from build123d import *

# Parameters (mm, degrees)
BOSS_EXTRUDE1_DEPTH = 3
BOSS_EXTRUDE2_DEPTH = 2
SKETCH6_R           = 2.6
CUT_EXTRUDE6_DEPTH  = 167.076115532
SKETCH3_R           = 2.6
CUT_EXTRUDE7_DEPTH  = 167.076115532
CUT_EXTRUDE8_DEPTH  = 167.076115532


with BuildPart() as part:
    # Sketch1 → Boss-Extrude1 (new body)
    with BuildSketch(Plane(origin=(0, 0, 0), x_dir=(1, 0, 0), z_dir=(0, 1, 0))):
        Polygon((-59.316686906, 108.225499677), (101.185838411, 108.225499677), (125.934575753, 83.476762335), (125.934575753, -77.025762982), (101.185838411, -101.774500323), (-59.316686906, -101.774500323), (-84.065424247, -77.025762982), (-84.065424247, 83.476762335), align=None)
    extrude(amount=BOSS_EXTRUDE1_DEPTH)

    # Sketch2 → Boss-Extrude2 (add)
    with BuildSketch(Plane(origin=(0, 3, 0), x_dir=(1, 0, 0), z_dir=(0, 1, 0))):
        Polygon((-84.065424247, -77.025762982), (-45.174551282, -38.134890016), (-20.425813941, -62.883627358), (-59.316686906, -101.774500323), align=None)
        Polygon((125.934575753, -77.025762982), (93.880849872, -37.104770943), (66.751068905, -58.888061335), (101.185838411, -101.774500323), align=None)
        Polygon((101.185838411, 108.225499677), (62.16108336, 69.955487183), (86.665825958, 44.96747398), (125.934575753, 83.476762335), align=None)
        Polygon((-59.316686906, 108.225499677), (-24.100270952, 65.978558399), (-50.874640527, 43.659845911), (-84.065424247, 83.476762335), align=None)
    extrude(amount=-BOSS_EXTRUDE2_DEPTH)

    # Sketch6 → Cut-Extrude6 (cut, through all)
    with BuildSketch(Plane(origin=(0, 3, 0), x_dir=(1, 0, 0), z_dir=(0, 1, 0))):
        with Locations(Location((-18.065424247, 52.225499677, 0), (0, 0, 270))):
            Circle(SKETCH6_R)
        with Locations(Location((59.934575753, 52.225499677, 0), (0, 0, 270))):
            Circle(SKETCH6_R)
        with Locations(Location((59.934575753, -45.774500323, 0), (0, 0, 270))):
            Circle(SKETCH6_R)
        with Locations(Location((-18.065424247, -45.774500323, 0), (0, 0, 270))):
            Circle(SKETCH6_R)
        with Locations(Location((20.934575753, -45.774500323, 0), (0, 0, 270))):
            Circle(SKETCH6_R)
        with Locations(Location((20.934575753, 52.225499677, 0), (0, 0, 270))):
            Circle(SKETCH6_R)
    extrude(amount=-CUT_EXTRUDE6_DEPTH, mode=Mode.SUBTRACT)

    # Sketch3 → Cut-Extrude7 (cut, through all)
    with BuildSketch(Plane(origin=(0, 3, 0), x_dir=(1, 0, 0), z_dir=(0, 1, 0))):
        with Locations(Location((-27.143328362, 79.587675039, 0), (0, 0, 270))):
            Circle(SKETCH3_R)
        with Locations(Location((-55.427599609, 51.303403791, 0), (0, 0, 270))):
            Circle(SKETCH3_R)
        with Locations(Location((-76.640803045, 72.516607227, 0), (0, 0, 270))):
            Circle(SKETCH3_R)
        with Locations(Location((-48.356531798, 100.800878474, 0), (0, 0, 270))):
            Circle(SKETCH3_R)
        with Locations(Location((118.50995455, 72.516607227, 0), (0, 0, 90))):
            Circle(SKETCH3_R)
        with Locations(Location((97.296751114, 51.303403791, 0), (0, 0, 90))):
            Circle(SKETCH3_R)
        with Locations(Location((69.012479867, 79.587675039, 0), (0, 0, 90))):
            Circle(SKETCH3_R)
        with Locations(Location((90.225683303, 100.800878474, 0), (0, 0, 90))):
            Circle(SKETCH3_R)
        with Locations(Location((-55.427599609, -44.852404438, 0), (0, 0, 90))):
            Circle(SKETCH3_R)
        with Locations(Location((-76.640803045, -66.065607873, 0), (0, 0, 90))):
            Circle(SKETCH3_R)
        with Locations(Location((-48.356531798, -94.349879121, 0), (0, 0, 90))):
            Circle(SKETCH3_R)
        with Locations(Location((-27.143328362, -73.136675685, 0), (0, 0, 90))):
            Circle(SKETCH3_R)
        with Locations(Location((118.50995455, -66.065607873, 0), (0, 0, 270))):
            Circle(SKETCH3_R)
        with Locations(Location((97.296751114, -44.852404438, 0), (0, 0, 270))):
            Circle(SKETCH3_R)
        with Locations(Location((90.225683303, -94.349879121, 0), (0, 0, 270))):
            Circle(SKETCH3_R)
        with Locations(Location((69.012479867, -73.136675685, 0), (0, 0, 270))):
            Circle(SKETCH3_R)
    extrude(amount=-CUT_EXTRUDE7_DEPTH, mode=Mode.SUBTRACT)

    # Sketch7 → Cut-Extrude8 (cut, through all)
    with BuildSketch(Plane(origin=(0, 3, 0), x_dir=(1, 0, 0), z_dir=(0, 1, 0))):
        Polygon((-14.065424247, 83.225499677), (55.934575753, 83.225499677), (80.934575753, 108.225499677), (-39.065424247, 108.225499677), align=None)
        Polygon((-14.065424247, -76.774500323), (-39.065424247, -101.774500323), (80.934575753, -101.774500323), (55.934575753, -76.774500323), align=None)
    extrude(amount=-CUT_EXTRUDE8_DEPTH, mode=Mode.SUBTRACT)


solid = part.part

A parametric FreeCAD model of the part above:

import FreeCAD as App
import Part
import Sketcher

V = App.Vector

doc = App.newDocument("Part")
params = doc.addObject("Spreadsheet::Sheet", "Params")
for row, (alias, value) in enumerate([
    ("sketch1_length", "35 mm"),
    ("pad1_length", "3 mm"),
    ("sketch2_length", "55 mm"),
    ("sketch2_length2", "35 mm"),
    ("pad2_length", "2 mm"),
    ("sketch3_diameter", "5.2 mm"),
    ("sketch4_diameter", "5.2 mm"),
    ("sketch5_width", "70 mm"),
    ("sketch5_width2", "120 mm"),
], start=1):
    params.set(f"A{row}", alias)
    params.set(f"B{row}", "=" + value)
    params.setAlias(f"B{row}", alias)

body = doc.addObject("PartDesign::Body", "Body")

sketch1 = body.newObject("Sketcher::SketchObject", "Sketch")
sketch1.AttachmentSupport = (doc.getObject("XZ_Plane"), [""])
sketch1.MapMode = "FlatFace"
sketch1.addGeometry([
    Part.LineSegment(V(101, -108, 0), V(-59, -108, 0)),
    Part.LineSegment(V(-59, -108, 0), V(-84, -83, 0)),
    Part.LineSegment(V(-84, -83, 0), V(-84, 77, 0)),
    Part.LineSegment(V(-84, 77, 0), V(-59, 102, 0)),
    Part.LineSegment(V(-59, 102, 0), V(101, 102, 0)),
    Part.LineSegment(V(101, 102, 0), V(126, 77, 0)),
    Part.LineSegment(V(126, 77, 0), V(126, -83, 0)),
    Part.LineSegment(V(126, -83, 0), V(101, -108, 0)),
], False)
sketch1.addConstraint([
    Sketcher.Constraint("Coincident", 0, 2, 1, 1),
    Sketcher.Constraint("Coincident", 1, 2, 2, 1),
    Sketcher.Constraint("Coincident", 2, 2, 3, 1),
    Sketcher.Constraint("Coincident", 3, 2, 4, 1),
    Sketcher.Constraint("Coincident", 4, 2, 5, 1),
    Sketcher.Constraint("Coincident", 5, 2, 6, 1),
    Sketcher.Constraint("Coincident", 6, 2, 7, 1),
    Sketcher.Constraint("Coincident", 7, 2, 0, 1),
    Sketcher.Constraint("Horizontal", 0),
    Sketcher.Constraint("Vertical", 2),
    Sketcher.Constraint("Horizontal", 4),
    Sketcher.Constraint("Vertical", 6),
    Sketcher.Constraint("Perpendicular", 1, 3),
    Sketcher.Constraint("Perpendicular", 3, 5),
    Sketcher.Constraint("Perpendicular", 5, 7),
    Sketcher.Constraint("Horizontal", 2, 2, 5, 2),
    Sketcher.Constraint("Horizontal", 1, 2, 6, 2),
    Sketcher.Constraint("Vertical", 0, 2, 3, 2),
    Sketcher.Constraint("Vertical", 4, 2, 7, 2),
    Sketcher.Constraint("Equal", 4, 2),
    Sketcher.Constraint("Distance", 1, 35.0),
    Sketcher.Constraint("DistanceY", 0, 2, 3, 2, 210.0),
    Sketcher.Constraint("DistanceY", 0, 2, -1, 1, 108.2255),
    Sketcher.Constraint("DistanceX", -1, 1, 4, 2, 101.185838),
])
sketch1.setExpression("Constraints[20]", "Params.sketch1_length")
pad1 = body.newObject("PartDesign::Pad", "Pad")
pad1.Profile = sketch1
pad1.setExpression("Length", "Params.pad1_length")
pad1.Reversed = True

sketch2 = body.newObject("Sketcher::SketchObject", "Sketch001")
sketch2.AttachmentSupport = (doc.getObject("XZ_Plane"), [""])
sketch2.MapMode = "FlatFace"
sketch2.AttachmentOffset = App.Placement(V(0, 0, -3), App.Rotation())
sketch2.addGeometry([
    Part.LineSegment(V(-45, 38, 0), V(-84, 77, 0)),
    Part.LineSegment(V(-84, 77, 0), V(-59, 102, 0)),
    Part.LineSegment(V(-59, 102, 0), V(-20, 63, 0)),
    Part.LineSegment(V(-20, 63, 0), V(-45, 38, 0)),
    Part.LineSegment(V(126, 77, 0), V(94, 37, 0)),
    Part.LineSegment(V(94, 37, 0), V(67, 59, 0)),
    Part.LineSegment(V(67, 59, 0), V(101, 102, 0)),
    Part.LineSegment(V(101, 102, 0), V(126, 77, 0)),
    Part.LineSegment(V(101, -108, 0), V(62, -70, 0)),
    Part.LineSegment(V(62, -70, 0), V(87, -45, 0)),
    Part.LineSegment(V(87, -45, 0), V(126, -83, 0)),
    Part.LineSegment(V(126, -83, 0), V(101, -108, 0)),
    Part.LineSegment(V(-24, -66, 0), V(-59, -108, 0)),
    Part.LineSegment(V(-59, -108, 0), V(-84, -83, 0)),
    Part.LineSegment(V(-84, -83, 0), V(-51, -44, 0)),
    Part.LineSegment(V(-51, -44, 0), V(-24, -66, 0)),
], False)
sketch2.addConstraint([
    Sketcher.Constraint("Coincident", 0, 2, 1, 1),
    Sketcher.Constraint("Coincident", 1, 2, 2, 1),
    Sketcher.Constraint("Coincident", 2, 2, 3, 1),
    Sketcher.Constraint("Coincident", 3, 2, 0, 1),
    Sketcher.Constraint("Coincident", 4, 2, 5, 1),
    Sketcher.Constraint("Coincident", 5, 2, 6, 1),
    Sketcher.Constraint("Coincident", 6, 2, 7, 1),
    Sketcher.Constraint("Coincident", 7, 2, 4, 1),
    Sketcher.Constraint("Coincident", 8, 2, 9, 1),
    Sketcher.Constraint("Coincident", 9, 2, 10, 1),
    Sketcher.Constraint("Coincident", 10, 2, 11, 1),
    Sketcher.Constraint("Coincident", 11, 2, 8, 1),
    Sketcher.Constraint("Coincident", 12, 2, 13, 1),
    Sketcher.Constraint("Coincident", 13, 2, 14, 1),
    Sketcher.Constraint("Coincident", 14, 2, 15, 1),
    Sketcher.Constraint("Coincident", 15, 2, 12, 1),
    Sketcher.Constraint("Perpendicular", 0, 1),
    Sketcher.Constraint("Perpendicular", 1, 2),
    Sketcher.Constraint("Perpendicular", 2, 3),
    Sketcher.Constraint("Perpendicular", 4, 5),
    Sketcher.Constraint("Perpendicular", 5, 6),
    Sketcher.Constraint("Perpendicular", 3, 7),
    Sketcher.Constraint("Perpendicular", 8, 9),
    Sketcher.Constraint("Perpendicular", 9, 10),
    Sketcher.Constraint("Perpendicular", 7, 11),
    Sketcher.Constraint("Perpendicular", 11, 13),
    Sketcher.Constraint("Parallel", 12, 14),
    Sketcher.Constraint("Perpendicular", 14, 15),
    Sketcher.Constraint("Horizontal", 1, 2, 6, 2),
    Sketcher.Constraint("Horizontal", 0, 2, 7, 2),
    Sketcher.Constraint("Horizontal", 11, 2, 12, 2),
    Sketcher.Constraint("Horizontal", 10, 2, 13, 2),
    Sketcher.Constraint("Vertical", 7, 2, 10, 2),
    Sketcher.Constraint("Vertical", 6, 2, 11, 2),
    Sketcher.Constraint("Vertical", 1, 2, 12, 2),
    Sketcher.Constraint("Vertical", 0, 2, 13, 2),
    Sketcher.Constraint("Equal", 2, 6),
    Sketcher.Constraint("Equal", 6, 10),
    Sketcher.Constraint("Equal", 10, 12),
    Sketcher.Constraint("Distance", 0, 55.0),
    Sketcher.Constraint("Distance", 1, 35.0),
    Sketcher.Constraint("DistanceY", -1, 1, 1, 2, 101.7745),
    Sketcher.Constraint("DistanceY", 11, 2, -1, 1, 108.2255),
    Sketcher.Constraint("DistanceX", 3, 2, 4, 2, 139.055401),
    Sketcher.Constraint("DistanceY", 5, 2, 0, 2, 18.137702),
    Sketcher.Constraint("Distance", 8, 54.65826),
    Sketcher.Constraint("DistanceX", 3, 2, -1, 1, 45.174551),
    Sketcher.Constraint("DistanceX", 14, 2, -1, 1, 50.874641),
])
sketch2.setExpression("Constraints[39]", "Params.sketch2_length")
sketch2.setExpression("Constraints[40]", "Params.sketch2_length2")
pad2 = body.newObject("PartDesign::Pad", "Pad001")
pad2.Profile = sketch2
pad2.setExpression("Length", "Params.pad2_length")

sketch3 = body.newObject("Sketcher::SketchObject", "Sketch002")
sketch3.AttachmentSupport = (doc.getObject("XZ_Plane"), [""])
sketch3.MapMode = "FlatFace"
sketch3.AttachmentOffset = App.Placement(V(0, 0, -3), App.Rotation())
sketch3.addGeometry([
    Part.Circle(V(-18.1, -52.2, 0), V(0, 0, 1), 2.6),
    Part.Circle(V(59.9, -52.2, 0), V(0, 0, 1), 2.6),
    Part.Circle(V(59.9, 45.8, 0), V(0, 0, 1), 2.6),
    Part.Circle(V(-18.1, 45.8, 0), V(0, 0, 1), 2.6),
    Part.Circle(V(20.9, 45.8, 0), V(0, 0, 1), 2.6),
    Part.Circle(V(20.9, -52.2, 0), V(0, 0, 1), 2.6),
], False)
sketch3.addConstraint([
    Sketcher.Constraint("Equal", 0, 1),
    Sketcher.Constraint("Equal", 1, 2),
    Sketcher.Constraint("Equal", 2, 3),
    Sketcher.Constraint("Equal", 3, 4),
    Sketcher.Constraint("Equal", 4, 5),
    Sketcher.Constraint("Horizontal", 0, 3, 1, 3),
    Sketcher.Constraint("Horizontal", 2, 3, 3, 3),
    Sketcher.Constraint("Horizontal", 3, 3, 4, 3),
    Sketcher.Constraint("Horizontal", 1, 3, 5, 3),
    Sketcher.Constraint("Vertical", 1, 3, 2, 3),
    Sketcher.Constraint("Vertical", 0, 3, 3, 3),
    Sketcher.Constraint("Vertical", 4, 3, 5, 3),
    Sketcher.Constraint("Diameter", 0, 5.2),
    Sketcher.Constraint("DistanceX", 0, 3, 1, 3, 78.0),
    Sketcher.Constraint("DistanceY", 1, 3, 2, 3, 98.0),
    Sketcher.Constraint("DistanceX", 4, 3, 2, 3, 39.0),
    Sketcher.Constraint("DistanceY", 0, 3, -1, 1, 52.2255),
    Sketcher.Constraint("DistanceX", 0, 3, -1, 1, 18.065424),
])
sketch3.setExpression("Constraints[12]", "Params.sketch3_diameter")
pocket1 = body.newObject("PartDesign::Pocket", "Pocket")
pocket1.Profile = sketch3
pocket1.Type = "ThroughAll"
pocket1.Reversed = True

sketch4 = body.newObject("Sketcher::SketchObject", "Sketch003")
sketch4.AttachmentSupport = (doc.getObject("XZ_Plane"), [""])
sketch4.MapMode = "FlatFace"
sketch4.AttachmentOffset = App.Placement(V(0, 0, -3), App.Rotation())
sketch4.addGeometry([
    Part.Circle(V(-27.1, -79.6, 0), V(0, 0, 1), 2.6),
    Part.Circle(V(-55.4, -51.3, 0), V(0, 0, 1), 2.6),
    Part.Circle(V(-76.6, -72.5, 0), V(0, 0, 1), 2.6),
    Part.Circle(V(-48.4, -100.8, 0), V(0, 0, 1), 2.6),
    Part.Circle(V(118.5, -72.5, 0), V(0, 0, 1), 2.6),
    Part.Circle(V(97.3, -51.3, 0), V(0, 0, 1), 2.6),
    Part.Circle(V(69, -79.6, 0), V(0, 0, 1), 2.6),
    Part.Circle(V(90.2, -100.8, 0), V(0, 0, 1), 2.6),
    Part.Circle(V(-55.4, 44.9, 0), V(0, 0, 1), 2.6),
    Part.Circle(V(-76.6, 66.1, 0), V(0, 0, 1), 2.6),
    Part.Circle(V(-48.4, 94.3, 0), V(0, 0, 1), 2.6),
    Part.Circle(V(-27.1, 73.1, 0), V(0, 0, 1), 2.6),
    Part.Circle(V(118.5, 66.1, 0), V(0, 0, 1), 2.6),
    Part.Circle(V(97.3, 44.9, 0), V(0, 0, 1), 2.6),
    Part.Circle(V(90.2, 94.3, 0), V(0, 0, 1), 2.6),
    Part.Circle(V(69, 73.1, 0), V(0, 0, 1), 2.6),
], False)
sketch4.addConstraint([
    Sketcher.Constraint("Equal", 0, 1),
    Sketcher.Constraint("Equal", 1, 2),
    Sketcher.Constraint("Equal", 2, 3),
    Sketcher.Constraint("Equal", 3, 4),
    Sketcher.Constraint("Equal", 4, 5),
    Sketcher.Constraint("Equal", 5, 6),
    Sketcher.Constraint("Equal", 6, 7),
    Sketcher.Constraint("Equal", 7, 8),
    Sketcher.Constraint("Equal", 8, 9),
    Sketcher.Constraint("Equal", 9, 10),
    Sketcher.Constraint("Equal", 10, 11),
    Sketcher.Constraint("Equal", 11, 12),
    Sketcher.Constraint("Equal", 12, 13),
    Sketcher.Constraint("Equal", 13, 14),
    Sketcher.Constraint("Equal", 14, 15),
    Sketcher.Constraint("Horizontal", 2, 3, 4, 3),
    Sketcher.Constraint("Horizontal", 1, 3, 5, 3),
    Sketcher.Constraint("Horizontal", 0, 3, 6, 3),
    Sketcher.Constraint("Horizontal", 3, 3, 7, 3),
    Sketcher.Constraint("Horizontal", 9, 3, 12, 3),
    Sketcher.Constraint("Horizontal", 8, 3, 13, 3),
    Sketcher.Constraint("Horizontal", 10, 3, 14, 3),
    Sketcher.Constraint("Horizontal", 11, 3, 15, 3),
    Sketcher.Constraint("Vertical", 1, 3, 8, 3),
    Sketcher.Constraint("Vertical", 2, 3, 9, 3),
    Sketcher.Constraint("Vertical", 3, 3, 10, 3),
    Sketcher.Constraint("Vertical", 0, 3, 11, 3),
    Sketcher.Constraint("Vertical", 4, 3, 12, 3),
    Sketcher.Constraint("Vertical", 5, 3, 13, 3),
    Sketcher.Constraint("Vertical", 7, 3, 14, 3),
    Sketcher.Constraint("Vertical", 6, 3, 15, 3),
    Sketcher.Constraint("Diameter", 0, 5.2),
    Sketcher.Constraint("DistanceX", 1, 3, -1, 1, 55.4276),
    Sketcher.Constraint("DistanceX", 0, 3, -1, 1, 27.143328),
    Sketcher.Constraint("DistanceX", 3, 3, -1, 1, 48.356532),
    Sketcher.Constraint("DistanceY", 3, 3, -1, 1, 100.800878),
    Sketcher.Constraint("DistanceX", -1, 1, 5, 3, 97.296751),
    Sketcher.Constraint("DistanceX", -1, 1, 6, 3, 69.01248),
    Sketcher.Constraint("DistanceY", -1, 1, 10, 3, 94.349879),
    Sketcher.Constraint("DistanceY", 0, 3, 1, 3, 28.284271),
    Sketcher.Constraint("DistanceX", 2, 3, 3, 3, 28.284271),
    Sketcher.Constraint("DistanceY", 3, 3, 2, 3, 28.284271),
    Sketcher.Constraint("DistanceX", 7, 3, 4, 3, 28.284271),
    Sketcher.Constraint("DistanceX", 0, 3, 7, 3, 117.369012),
    Sketcher.Constraint("DistanceY", 1, 3, 8, 3, 96.155808),
    Sketcher.Constraint("DistanceY", 2, 3, 8, 3, 117.369012),
    Sketcher.Constraint("DistanceY", 1, 3, 9, 3, 117.369012),
    Sketcher.Constraint("DistanceY", 8, 3, 11, 3, 28.284271),
])
sketch4.setExpression("Constraints[31]", "Params.sketch4_diameter")
pocket2 = body.newObject("PartDesign::Pocket", "Pocket001")
pocket2.Profile = sketch4
pocket2.Type = "ThroughAll"
pocket2.Reversed = True

sketch5 = body.newObject("Sketcher::SketchObject", "Sketch004")
sketch5.AttachmentSupport = (doc.getObject("XZ_Plane"), [""])
sketch5.MapMode = "FlatFace"
sketch5.AttachmentOffset = App.Placement(V(0, 0, -3), App.Rotation())
sketch5.addGeometry([
    Part.LineSegment(V(-14, -83, 0), V(56, -83, 0)),
    Part.LineSegment(V(56, -83, 0), V(81, -108, 0)),
    Part.LineSegment(V(81, -108, 0), V(-39, -108, 0)),
    Part.LineSegment(V(-39, -108, 0), V(-14, -83, 0)),
    Part.LineSegment(V(-14, 77, 0), V(-39, 102, 0)),
    Part.LineSegment(V(-39, 102, 0), V(81, 102, 0)),
    Part.LineSegment(V(81, 102, 0), V(56, 77, 0)),
    Part.LineSegment(V(56, 77, 0), V(-14, 77, 0)),
], False)
sketch5.addConstraint([
    Sketcher.Constraint("Coincident", 0, 2, 1, 1),
    Sketcher.Constraint("Coincident", 1, 2, 2, 1),
    Sketcher.Constraint("Coincident", 2, 2, 3, 1),
    Sketcher.Constraint("Coincident", 3, 2, 0, 1),
    Sketcher.Constraint("Coincident", 4, 2, 5, 1),
    Sketcher.Constraint("Coincident", 5, 2, 6, 1),
    Sketcher.Constraint("Coincident", 6, 2, 7, 1),
    Sketcher.Constraint("Coincident", 7, 2, 4, 1),
    Sketcher.Constraint("Horizontal", 0),
    Sketcher.Constraint("Horizontal", 2),
    Sketcher.Constraint("Horizontal", 5),
    Sketcher.Constraint("Horizontal", 7),
    Sketcher.Constraint("Perpendicular", 1, 3),
    Sketcher.Constraint("Perpendicular", 3, 4),
    Sketcher.Constraint("Perpendicular", 4, 6),
    Sketcher.Constraint("Vertical", 2, 2, 4, 2),
    Sketcher.Constraint("Vertical", 1, 2, 5, 2),
    Sketcher.Constraint("Vertical", 0, 2, 6, 2),
    Sketcher.Constraint("Vertical", 3, 2, 7, 2),
    Sketcher.Constraint("DistanceX", 0, 1, 0, 2, 70.0),
    Sketcher.Constraint("DistanceX", 2, 2, 2, 1, 120.0),
    Sketcher.Constraint("DistanceY", 3, 2, 4, 2, 185.0),
    Sketcher.Constraint("DistanceY", 0, 2, -1, 1, 83.2255),
    Sketcher.Constraint("DistanceX", -1, 1, 0, 2, 55.934576),
])
sketch5.setExpression("Constraints[19]", "Params.sketch5_width")
sketch5.setExpression("Constraints[20]", "Params.sketch5_width2")
pocket3 = body.newObject("PartDesign::Pocket", "Pocket002")
pocket3.Profile = sketch5
pocket3.Type = "ThroughAll"
pocket3.Reversed = True

doc.recompute()
